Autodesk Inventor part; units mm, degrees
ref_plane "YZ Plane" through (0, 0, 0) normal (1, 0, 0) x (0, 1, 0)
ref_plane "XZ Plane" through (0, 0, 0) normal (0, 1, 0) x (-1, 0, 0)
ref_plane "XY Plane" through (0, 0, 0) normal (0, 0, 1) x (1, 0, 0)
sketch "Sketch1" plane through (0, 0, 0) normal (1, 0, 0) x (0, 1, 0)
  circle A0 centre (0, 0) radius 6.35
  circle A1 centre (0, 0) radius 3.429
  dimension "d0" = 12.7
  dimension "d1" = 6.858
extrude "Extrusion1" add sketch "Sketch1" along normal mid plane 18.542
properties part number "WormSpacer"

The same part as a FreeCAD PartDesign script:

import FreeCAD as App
import Part
import Sketcher
Q = App.Units.Quantity

doc = App.newDocument("Part")
body = doc.addObject("PartDesign::Body", "Body")

sketch1 = body.newObject("Sketcher::SketchObject", "Sketch")
sketch1.AttachmentSupport = (doc.getObject("YZ_Plane"), [""])
sketch1.MapMode = "FlatFace"
sketch1.addGeometry([
    Part.Circle(App.Vector(0, 0, 0), App.Vector(0, 0, 1), 6.3),
    Part.Circle(App.Vector(0, 0, 0), App.Vector(0, 0, 1), 3.4),
], False)
sketch1.addConstraint([
    Sketcher.Constraint("Coincident", 0, 3, -1, 1),
    Sketcher.Constraint("Coincident", 1, 3, -1, 1),
    Sketcher.Constraint("Diameter", 0, Q("0.5 in")),
    Sketcher.Constraint("Diameter", 1, Q("0.27 in")),
])
pad1 = body.newObject("PartDesign::Pad", "Pad")
pad1.Profile = sketch1
pad1.Length = Q("0.73 in")
pad1.Midplane = True

doc.recompute()
